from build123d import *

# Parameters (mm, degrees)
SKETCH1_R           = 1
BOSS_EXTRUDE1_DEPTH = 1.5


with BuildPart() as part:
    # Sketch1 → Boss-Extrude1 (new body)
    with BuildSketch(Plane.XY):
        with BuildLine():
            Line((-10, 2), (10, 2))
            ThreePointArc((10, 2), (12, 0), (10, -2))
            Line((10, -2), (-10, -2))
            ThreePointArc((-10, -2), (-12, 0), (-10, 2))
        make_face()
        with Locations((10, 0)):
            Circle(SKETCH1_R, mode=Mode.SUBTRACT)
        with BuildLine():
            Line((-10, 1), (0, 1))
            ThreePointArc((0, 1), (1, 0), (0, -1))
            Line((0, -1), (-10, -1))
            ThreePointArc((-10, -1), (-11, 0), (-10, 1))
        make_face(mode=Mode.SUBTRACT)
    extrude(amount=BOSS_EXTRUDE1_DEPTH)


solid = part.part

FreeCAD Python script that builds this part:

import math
import FreeCAD as App
import Part
import Sketcher

V = App.Vector

doc = App.newDocument("Part")
body = doc.addObject("PartDesign::Body", "Body")

# Sketch on XY plane
sketch1 = body.newObject("Sketcher::SketchObject", "Sketch")
sketch1.AttachmentSupport = (doc.getObject("XY_Plane"), [""])
sketch1.MapMode = "FlatFace"
sketch1.addGeometry([
    Part.LineSegment(V(10, 2, 0), V(-10, 2, 0)),  # 0
    Part.ArcOfCircle(Part.Circle(V(-10, 0, 0), V(0, 0, 1), 2), math.radians(90), math.radians(270)),  # 1
    Part.LineSegment(V(-10, -2, 0), V(10, -2, 0)),  # 2
    Part.ArcOfCircle(Part.Circle(V(10, 0, 0), V(0, 0, 1), 2), math.radians(-90), math.radians(90)),  # 3
    Part.Circle(V(10, 0, 0), V(0, 0, 1), 1),  # 4
    Part.LineSegment(V(-10, 1, 0), V(0, 1, 0)),  # 5
    Part.ArcOfCircle(Part.Circle(V(0, 0, 0), V(0, 0, 1), 1), math.radians(-90), math.radians(90)),  # 6
    Part.LineSegment(V(0, -1, 0), V(-10, -1, 0)),  # 7
    Part.ArcOfCircle(Part.Circle(V(-10, 0, 0), V(0, 0, 1), 1), math.radians(90), math.radians(270)),  # 8
], False)
sketch1.addConstraint([
    Sketcher.Constraint("Tangent", 0, 2, 1, 1),
    Sketcher.Constraint("Tangent", 1, 2, 2, 1),
    Sketcher.Constraint("Tangent", 2, 2, 3, 1),
    Sketcher.Constraint("Tangent", 3, 2, 0, 1),
    Sketcher.Constraint("Tangent", 5, 2, 6, 2),
    Sketcher.Constraint("Tangent", 6, 1, 7, 1),
    Sketcher.Constraint("Tangent", 7, 2, 8, 2),
    Sketcher.Constraint("Tangent", 8, 1, 5, 1),
    Sketcher.Constraint("Horizontal", 0),
    Sketcher.Constraint("Horizontal", 2),
    Sketcher.Constraint("Horizontal", 5),
    Sketcher.Constraint("Horizontal", 7),
    Sketcher.Constraint("Coincident", 6, 3, -1, 1),
    Sketcher.Constraint("Coincident", 4, 3, 3, 3),
    Sketcher.Constraint("Coincident", 8, 3, 1, 3),
    Sketcher.Constraint("Equal", 4, 6),
    Sketcher.Constraint("Diameter", 4, 2.0),
    Sketcher.Constraint("Radius", 1, 2.0),
    Sketcher.Constraint("DistanceX", 0, 2, 0, 1, 20.0),
    Sketcher.Constraint("DistanceX", 5, 1, 5, 2, 10.0),
])
pad1 = body.newObject("PartDesign::Pad", "Pad")
pad1.Profile = sketch1
pad1.Length = 1.5

doc.recompute()
